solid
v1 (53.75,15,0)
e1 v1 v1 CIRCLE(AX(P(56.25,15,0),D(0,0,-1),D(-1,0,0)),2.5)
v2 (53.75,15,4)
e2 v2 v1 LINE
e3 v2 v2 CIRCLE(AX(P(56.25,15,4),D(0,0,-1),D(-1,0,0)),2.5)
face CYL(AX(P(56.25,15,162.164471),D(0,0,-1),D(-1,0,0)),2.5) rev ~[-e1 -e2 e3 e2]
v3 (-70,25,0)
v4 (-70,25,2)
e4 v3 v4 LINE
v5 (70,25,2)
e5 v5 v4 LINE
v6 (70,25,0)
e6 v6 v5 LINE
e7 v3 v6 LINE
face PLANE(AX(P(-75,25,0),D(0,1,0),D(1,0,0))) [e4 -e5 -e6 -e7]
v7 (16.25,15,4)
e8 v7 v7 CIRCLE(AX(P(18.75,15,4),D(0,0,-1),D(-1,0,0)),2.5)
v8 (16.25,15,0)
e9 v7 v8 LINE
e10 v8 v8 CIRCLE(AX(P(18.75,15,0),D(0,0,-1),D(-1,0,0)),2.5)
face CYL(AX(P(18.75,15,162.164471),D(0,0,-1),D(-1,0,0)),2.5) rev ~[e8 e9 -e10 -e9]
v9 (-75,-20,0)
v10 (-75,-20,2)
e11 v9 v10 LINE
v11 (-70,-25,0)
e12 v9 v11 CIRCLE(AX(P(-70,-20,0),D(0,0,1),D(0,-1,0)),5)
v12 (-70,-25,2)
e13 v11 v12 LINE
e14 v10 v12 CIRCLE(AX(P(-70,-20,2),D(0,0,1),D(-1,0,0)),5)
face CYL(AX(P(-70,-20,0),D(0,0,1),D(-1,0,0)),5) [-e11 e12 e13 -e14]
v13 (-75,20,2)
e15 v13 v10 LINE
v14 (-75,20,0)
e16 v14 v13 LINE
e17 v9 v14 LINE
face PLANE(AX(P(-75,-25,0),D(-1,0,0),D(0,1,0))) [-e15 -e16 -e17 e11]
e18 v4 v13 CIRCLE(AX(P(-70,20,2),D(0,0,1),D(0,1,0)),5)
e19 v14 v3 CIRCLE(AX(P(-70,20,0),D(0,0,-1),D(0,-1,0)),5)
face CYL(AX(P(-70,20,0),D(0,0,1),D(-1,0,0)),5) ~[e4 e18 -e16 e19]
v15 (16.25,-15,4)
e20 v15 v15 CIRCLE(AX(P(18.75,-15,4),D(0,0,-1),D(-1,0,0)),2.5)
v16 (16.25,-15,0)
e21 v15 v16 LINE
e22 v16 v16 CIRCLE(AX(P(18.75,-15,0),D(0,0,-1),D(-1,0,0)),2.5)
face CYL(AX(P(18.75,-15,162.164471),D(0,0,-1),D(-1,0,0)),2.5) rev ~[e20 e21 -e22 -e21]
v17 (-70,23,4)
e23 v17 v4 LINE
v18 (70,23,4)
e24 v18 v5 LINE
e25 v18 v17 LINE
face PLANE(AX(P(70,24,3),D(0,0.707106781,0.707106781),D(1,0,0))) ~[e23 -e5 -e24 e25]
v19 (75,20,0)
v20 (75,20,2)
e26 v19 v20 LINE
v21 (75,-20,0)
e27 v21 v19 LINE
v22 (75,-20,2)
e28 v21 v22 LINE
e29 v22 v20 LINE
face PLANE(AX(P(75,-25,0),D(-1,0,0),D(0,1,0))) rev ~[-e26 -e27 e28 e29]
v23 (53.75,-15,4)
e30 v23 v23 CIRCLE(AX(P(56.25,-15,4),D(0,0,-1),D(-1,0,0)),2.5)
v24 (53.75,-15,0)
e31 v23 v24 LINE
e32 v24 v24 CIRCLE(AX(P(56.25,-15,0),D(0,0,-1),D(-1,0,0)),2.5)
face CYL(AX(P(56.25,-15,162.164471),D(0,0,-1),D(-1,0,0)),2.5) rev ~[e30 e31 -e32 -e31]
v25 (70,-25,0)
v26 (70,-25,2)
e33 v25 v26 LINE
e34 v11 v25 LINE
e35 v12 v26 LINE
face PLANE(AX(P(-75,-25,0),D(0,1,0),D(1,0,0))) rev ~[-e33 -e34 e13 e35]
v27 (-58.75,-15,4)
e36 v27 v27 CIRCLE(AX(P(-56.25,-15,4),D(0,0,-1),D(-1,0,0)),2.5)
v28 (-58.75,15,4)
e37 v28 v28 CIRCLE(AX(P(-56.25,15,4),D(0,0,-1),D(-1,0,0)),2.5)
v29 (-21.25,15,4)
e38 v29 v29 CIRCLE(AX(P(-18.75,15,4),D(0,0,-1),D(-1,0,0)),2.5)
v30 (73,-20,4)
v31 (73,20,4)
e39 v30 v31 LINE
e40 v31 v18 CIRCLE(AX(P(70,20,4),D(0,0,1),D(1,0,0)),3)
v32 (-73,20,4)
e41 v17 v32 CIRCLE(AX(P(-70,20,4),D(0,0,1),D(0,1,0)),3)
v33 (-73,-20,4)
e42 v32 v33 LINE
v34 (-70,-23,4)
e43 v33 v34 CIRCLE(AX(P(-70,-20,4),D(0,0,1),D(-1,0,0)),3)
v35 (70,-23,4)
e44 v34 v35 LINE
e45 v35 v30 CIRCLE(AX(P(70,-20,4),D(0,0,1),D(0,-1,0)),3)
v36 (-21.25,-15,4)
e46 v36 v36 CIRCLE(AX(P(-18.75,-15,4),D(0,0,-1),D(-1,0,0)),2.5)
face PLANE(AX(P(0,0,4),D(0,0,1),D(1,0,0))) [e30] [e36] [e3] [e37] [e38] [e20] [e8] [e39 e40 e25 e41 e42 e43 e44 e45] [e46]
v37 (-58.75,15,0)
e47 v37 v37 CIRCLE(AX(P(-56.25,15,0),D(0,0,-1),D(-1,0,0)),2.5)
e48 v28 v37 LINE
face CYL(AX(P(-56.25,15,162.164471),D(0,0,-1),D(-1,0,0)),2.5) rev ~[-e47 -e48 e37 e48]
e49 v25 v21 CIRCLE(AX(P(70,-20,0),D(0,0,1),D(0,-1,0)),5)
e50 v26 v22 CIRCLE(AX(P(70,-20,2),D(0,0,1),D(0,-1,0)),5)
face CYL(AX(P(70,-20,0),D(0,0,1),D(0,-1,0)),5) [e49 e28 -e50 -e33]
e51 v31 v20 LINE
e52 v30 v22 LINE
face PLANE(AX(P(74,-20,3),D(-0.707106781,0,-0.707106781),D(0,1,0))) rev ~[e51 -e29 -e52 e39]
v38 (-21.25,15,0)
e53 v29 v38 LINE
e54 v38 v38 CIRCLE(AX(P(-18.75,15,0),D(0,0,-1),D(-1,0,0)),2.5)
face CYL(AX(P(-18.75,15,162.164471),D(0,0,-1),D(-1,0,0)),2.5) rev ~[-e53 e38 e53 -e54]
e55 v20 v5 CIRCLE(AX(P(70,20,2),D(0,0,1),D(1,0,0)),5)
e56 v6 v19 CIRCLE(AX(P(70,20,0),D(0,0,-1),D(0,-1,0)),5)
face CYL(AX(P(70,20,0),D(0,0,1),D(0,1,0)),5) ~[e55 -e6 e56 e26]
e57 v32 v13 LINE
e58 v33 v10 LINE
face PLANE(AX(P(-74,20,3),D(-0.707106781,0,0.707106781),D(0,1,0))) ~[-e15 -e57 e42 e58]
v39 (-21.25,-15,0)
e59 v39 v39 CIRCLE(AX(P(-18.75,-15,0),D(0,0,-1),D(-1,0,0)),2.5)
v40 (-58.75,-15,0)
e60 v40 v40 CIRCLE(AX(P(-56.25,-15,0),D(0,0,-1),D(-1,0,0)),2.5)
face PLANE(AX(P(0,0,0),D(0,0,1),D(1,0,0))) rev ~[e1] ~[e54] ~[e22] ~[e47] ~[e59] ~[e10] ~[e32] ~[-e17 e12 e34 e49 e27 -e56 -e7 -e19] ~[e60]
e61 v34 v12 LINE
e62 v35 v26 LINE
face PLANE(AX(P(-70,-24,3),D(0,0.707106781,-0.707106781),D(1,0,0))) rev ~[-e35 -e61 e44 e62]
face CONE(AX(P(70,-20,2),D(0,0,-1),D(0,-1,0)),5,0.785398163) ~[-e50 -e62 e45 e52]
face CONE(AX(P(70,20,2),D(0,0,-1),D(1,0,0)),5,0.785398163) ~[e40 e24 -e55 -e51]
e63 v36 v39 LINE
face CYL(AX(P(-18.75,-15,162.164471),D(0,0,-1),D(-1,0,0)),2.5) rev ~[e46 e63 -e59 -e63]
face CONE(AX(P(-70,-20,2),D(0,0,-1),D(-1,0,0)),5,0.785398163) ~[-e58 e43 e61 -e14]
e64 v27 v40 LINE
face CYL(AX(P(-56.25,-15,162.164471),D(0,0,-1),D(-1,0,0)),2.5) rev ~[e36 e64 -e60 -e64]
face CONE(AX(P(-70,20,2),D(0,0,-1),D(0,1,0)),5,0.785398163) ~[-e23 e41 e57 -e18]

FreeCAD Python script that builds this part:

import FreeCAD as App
import Part
import Sketcher


def edges_at(feature, points):
    """Names of the edges that pass closest to the given points."""
    edges = feature.Shape.Edges
    near = lambda p: min(range(len(edges)), key=lambda i: edges[i].distToShape(Part.Vertex(*p))[0])
    return sorted({f"Edge{near(p) + 1}" for p in points})


def add_polygon(sketch, points):
    """Adds a closed chain of lines whose ends are joined by coincident constraints."""
    first, n = sketch.GeometryCount, len(points)
    for a, b in zip(points, points[1:] + points[:1]):
        sketch.addGeometry(Part.LineSegment(App.Vector(*a, 0), App.Vector(*b, 0)), False)
    for i in range(n):
        sketch.addConstraint(Sketcher.Constraint("Coincident", first + i, 2, first + (i + 1) % n, 1))

doc = App.newDocument("Part")
body = doc.addObject("PartDesign::Body", "Body")

# Sketch on XY plane
sketch1 = body.newObject("Sketcher::SketchObject", "Sketch")
sketch1.AttachmentSupport = (doc.getObject("XY_Plane"), [""])
sketch1.MapMode = "FlatFace"
add_polygon(sketch1, [(-75, 25), (-75, -25), (75, -25), (75, 25)])  # lines 0-3
sketch1.addConstraint([
    Sketcher.Constraint("Vertical", 0),
    Sketcher.Constraint("Horizontal", 1),
    Sketcher.Constraint("Vertical", 2),
    Sketcher.Constraint("Horizontal", 3),
    Sketcher.Constraint("Symmetric", 0, 2, 2, 2, -1, 1),
    Sketcher.Constraint("DistanceX", 1, 1, 1, 2, 150.0),
    Sketcher.Constraint("DistanceY", 0, 2, 0, 1, 50.0),
])
pad1 = body.newObject("PartDesign::Pad", "Pad")
pad1.Profile = sketch1
pad1.Length = 4

# Sketch on XY plane
sketch2 = body.newObject("Sketcher::SketchObject", "Sketch001")
sketch2.AttachmentSupport = (doc.getObject("XY_Plane"), [""])
sketch2.MapMode = "FlatFace"
sketch2.AttachmentOffset = App.Placement(App.Vector(0, 0, 4), App.Rotation())
sketch2.addGeometry([
    Part.Circle(App.Vector(-56.2, 15, 0), App.Vector(0, 0, 1), 2.5),  # 0
    Part.Circle(App.Vector(-56.2, -15, 0), App.Vector(0, 0, 1), 2.5),  # 1
    Part.Circle(App.Vector(-18.8, -15, 0), App.Vector(0, 0, 1), 2.5),  # 2
    Part.Circle(App.Vector(-18.8, 15, 0), App.Vector(0, 0, 1), 2.5),  # 3
    Part.Circle(App.Vector(18.8, 15, 0), App.Vector(0, 0, 1), 2.5),  # 4
    Part.Circle(App.Vector(18.8, -15, 0), App.Vector(0, 0, 1), 2.5),  # 5
    Part.Circle(App.Vector(56.2, -15, 0), App.Vector(0, 0, 1), 2.5),  # 6
    Part.Circle(App.Vector(56.2, 15, 0), App.Vector(0, 0, 1), 2.5),  # 7
], False)
sketch2.addConstraint([
    Sketcher.Constraint("Equal", 0, 1),
    Sketcher.Constraint("Equal", 1, 2),
    Sketcher.Constraint("Equal", 2, 3),
    Sketcher.Constraint("Equal", 3, 4),
    Sketcher.Constraint("Equal", 4, 5),
    Sketcher.Constraint("Equal", 5, 6),
    Sketcher.Constraint("Equal", 6, 7),
    Sketcher.Constraint("Symmetric", 2, 3, 4, 3, -1, 1),
    Sketcher.Constraint("Symmetric", 3, 3, 5, 3, -1, 1),
    Sketcher.Constraint("Symmetric", 0, 3, 6, 3, -1, 1),
    Sketcher.Constraint("Symmetric", 1, 3, 7, 3, -1, 1),
    Sketcher.Constraint("Symmetric", 3, 3, 4, 3, -2),
    Sketcher.Constraint("Symmetric", 1, 3, 6, 3, -2),
    Sketcher.Constraint("Horizontal", 1, 3, 2, 3),
    Sketcher.Constraint("Diameter", 0, 5.0),
    Sketcher.Constraint("DistanceY", -1, 1, 0, 3, 15.0),
    Sketcher.Constraint("DistanceX", 0, 3, 4, 3, 75.0),
    Sketcher.Constraint("DistanceX", 1, 3, 2, 3, 37.5),
])
doc.recompute()
hole = body.newObject("PartDesign::Hole", "Hole")
hole.Profile = sketch2
hole.ThreadType = "None"
hole.Diameter = 5
hole.DepthType = "ThroughAll"
doc.recompute()

fillet = body.newObject("PartDesign::Fillet", "Fillet")
fillet.Base = (hole, edges_at(hole, [
    (-75, 25, 2),
    (-75, -25, 2),
    (75, -25, 2),
    (75, 25, 2),
]))
fillet.Radius = 5
doc.recompute()

chamfer = body.newObject("PartDesign::Chamfer", "Chamfer")
chamfer.Base = (fillet, edges_at(fillet, [(0, -25, 4)]))
chamfer.Size = 2

doc.recompute()
